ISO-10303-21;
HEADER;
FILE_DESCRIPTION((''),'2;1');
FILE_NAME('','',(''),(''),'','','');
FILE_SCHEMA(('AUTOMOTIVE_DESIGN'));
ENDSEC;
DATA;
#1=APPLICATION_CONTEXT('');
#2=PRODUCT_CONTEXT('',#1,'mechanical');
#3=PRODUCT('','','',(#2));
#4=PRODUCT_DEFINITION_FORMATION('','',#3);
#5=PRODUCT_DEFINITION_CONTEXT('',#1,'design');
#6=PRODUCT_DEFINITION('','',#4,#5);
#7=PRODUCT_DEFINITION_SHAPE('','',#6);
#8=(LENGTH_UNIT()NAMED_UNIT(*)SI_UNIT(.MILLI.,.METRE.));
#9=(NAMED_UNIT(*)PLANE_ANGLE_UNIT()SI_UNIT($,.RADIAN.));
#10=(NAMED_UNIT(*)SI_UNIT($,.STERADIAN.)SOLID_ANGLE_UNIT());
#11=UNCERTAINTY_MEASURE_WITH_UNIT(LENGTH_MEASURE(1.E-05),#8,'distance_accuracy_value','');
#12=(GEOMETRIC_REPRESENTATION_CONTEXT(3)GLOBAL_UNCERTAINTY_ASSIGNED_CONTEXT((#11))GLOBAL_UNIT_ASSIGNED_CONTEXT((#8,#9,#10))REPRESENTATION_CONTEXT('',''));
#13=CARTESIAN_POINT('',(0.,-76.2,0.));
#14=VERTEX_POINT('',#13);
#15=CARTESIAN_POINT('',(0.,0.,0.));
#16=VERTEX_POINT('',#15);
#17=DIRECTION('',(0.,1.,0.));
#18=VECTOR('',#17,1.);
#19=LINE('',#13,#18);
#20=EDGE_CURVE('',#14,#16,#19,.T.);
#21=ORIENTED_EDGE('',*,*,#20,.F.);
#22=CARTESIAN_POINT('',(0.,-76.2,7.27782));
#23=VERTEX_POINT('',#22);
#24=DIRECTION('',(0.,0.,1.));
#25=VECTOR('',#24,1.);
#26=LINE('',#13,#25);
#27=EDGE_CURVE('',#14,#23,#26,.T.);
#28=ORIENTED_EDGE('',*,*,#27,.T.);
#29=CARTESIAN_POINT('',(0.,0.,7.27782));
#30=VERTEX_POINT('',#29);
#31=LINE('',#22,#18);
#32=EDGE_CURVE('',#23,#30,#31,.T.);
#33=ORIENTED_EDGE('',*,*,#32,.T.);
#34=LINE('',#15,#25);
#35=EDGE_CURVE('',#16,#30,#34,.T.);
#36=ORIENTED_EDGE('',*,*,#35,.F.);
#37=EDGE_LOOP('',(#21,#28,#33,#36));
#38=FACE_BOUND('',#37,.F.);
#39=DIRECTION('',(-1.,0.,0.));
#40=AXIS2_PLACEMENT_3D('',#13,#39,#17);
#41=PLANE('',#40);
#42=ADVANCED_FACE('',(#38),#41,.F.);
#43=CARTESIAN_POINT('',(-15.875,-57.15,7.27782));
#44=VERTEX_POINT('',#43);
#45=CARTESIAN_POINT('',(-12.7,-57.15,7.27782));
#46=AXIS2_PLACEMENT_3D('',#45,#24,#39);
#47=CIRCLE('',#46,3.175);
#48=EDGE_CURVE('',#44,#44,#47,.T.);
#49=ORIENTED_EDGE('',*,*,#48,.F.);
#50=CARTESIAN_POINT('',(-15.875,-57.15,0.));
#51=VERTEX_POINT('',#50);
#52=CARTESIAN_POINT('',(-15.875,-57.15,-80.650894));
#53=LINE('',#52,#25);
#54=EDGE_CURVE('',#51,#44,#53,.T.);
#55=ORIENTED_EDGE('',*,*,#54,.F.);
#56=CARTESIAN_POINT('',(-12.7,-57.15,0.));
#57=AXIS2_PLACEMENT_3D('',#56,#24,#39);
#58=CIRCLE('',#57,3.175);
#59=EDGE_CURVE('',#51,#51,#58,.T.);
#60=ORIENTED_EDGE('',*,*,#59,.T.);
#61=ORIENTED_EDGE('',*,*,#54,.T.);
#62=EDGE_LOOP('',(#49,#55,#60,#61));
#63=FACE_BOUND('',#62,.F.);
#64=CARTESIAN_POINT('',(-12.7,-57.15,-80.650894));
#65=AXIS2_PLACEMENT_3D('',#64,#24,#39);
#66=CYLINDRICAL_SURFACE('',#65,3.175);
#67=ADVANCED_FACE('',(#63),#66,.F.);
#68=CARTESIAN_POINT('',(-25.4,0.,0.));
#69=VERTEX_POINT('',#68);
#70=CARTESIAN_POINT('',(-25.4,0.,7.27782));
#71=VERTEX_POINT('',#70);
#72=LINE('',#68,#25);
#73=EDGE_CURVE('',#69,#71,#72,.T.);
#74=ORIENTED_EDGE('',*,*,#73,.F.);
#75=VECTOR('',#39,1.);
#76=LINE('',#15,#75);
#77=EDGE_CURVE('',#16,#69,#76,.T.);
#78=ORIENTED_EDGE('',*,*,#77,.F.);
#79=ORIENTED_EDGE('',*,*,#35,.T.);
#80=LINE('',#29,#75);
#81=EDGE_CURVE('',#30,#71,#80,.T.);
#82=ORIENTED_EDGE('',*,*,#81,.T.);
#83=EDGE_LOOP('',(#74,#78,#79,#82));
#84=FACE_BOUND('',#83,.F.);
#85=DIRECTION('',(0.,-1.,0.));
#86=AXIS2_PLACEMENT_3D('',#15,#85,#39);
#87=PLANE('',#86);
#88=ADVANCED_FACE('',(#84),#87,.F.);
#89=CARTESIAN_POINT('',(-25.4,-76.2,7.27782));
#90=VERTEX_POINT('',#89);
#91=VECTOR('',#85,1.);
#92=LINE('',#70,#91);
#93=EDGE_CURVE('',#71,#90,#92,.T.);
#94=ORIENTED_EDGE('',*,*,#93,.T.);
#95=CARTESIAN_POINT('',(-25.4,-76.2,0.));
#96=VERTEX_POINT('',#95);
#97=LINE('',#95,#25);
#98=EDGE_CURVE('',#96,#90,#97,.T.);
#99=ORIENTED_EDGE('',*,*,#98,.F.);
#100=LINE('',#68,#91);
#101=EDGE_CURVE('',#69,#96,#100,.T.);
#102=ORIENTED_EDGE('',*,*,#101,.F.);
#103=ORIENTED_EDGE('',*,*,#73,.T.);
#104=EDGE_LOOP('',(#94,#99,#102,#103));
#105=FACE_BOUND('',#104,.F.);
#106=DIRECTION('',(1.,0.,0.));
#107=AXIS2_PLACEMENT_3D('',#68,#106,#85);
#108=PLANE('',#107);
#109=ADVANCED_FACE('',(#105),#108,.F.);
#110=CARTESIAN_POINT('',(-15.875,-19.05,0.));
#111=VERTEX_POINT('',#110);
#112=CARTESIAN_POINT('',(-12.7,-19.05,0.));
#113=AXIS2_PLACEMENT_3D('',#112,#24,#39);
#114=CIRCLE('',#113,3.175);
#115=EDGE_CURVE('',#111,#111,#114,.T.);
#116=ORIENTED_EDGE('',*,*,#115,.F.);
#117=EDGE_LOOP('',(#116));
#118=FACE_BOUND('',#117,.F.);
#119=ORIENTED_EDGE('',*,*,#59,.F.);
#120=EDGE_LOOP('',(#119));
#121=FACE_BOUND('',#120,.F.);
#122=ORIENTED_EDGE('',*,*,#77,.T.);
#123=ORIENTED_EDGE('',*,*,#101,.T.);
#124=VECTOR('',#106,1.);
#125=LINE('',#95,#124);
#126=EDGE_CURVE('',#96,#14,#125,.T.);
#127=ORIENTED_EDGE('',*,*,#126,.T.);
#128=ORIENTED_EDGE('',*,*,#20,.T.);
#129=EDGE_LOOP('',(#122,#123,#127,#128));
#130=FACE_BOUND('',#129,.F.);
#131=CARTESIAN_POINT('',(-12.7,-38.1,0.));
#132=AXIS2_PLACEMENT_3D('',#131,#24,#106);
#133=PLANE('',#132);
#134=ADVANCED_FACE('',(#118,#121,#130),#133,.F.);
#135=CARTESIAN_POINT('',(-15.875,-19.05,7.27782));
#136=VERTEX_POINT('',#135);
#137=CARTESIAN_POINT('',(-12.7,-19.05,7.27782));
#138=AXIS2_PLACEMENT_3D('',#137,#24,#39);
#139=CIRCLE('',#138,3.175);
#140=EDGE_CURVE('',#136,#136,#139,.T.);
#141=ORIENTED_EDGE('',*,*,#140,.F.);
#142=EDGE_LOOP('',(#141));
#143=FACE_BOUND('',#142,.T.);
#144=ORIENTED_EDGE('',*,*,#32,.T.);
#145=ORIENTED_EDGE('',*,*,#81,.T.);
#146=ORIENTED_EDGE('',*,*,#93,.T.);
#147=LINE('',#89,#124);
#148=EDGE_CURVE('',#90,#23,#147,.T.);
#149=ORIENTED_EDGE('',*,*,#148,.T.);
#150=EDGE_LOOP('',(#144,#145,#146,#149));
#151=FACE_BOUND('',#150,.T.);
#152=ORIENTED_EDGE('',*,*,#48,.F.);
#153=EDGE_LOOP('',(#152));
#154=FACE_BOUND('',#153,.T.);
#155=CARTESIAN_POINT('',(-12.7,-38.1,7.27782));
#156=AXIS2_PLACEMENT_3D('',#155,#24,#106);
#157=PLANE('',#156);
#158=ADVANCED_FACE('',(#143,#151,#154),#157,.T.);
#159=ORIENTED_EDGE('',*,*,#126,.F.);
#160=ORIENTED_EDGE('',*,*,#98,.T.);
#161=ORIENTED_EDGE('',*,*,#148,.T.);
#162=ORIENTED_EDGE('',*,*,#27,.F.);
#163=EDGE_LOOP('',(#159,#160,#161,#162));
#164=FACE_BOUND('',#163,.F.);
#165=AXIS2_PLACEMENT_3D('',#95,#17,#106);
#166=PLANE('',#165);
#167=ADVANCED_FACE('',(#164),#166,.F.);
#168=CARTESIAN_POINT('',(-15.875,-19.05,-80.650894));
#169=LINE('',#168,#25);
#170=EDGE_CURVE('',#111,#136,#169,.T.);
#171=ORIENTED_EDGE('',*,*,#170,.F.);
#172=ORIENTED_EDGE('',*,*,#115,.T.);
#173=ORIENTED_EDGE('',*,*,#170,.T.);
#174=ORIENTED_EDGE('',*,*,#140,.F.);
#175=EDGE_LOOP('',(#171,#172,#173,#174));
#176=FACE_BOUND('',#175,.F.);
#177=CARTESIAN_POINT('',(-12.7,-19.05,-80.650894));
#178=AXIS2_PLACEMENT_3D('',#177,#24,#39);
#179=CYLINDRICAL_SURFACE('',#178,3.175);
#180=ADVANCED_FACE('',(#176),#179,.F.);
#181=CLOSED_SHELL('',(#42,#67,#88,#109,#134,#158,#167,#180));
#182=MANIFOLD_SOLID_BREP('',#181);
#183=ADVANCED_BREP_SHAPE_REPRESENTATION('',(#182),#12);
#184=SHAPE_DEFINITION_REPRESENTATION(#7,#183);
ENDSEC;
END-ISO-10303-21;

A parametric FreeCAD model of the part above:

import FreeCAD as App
import Part
import Sketcher

V = App.Vector
Q = App.Units.Quantity

doc = App.newDocument("Part")
body = doc.addObject("PartDesign::Body", "Body")

# Sketch on XY plane
sketch1 = doc.addObject("Sketcher::SketchObject", "Sketch")
body.addObject(sketch1)
sketch1.AttachmentSupport = (doc.XY_Plane, [""])
sketch1.MapMode = "FlatFace"
sketch1.addGeometry([
    Part.LineSegment(V(0, -76, 0), V(0, 0, 0)),
    Part.LineSegment(V(0, 0, 0), V(-25, 0, 0)),
    Part.LineSegment(V(-25, 0, 0), V(-25, -76, 0)),
    Part.LineSegment(V(-25, -76, 0), V(0, -76, 0)),
], False)
sketch1.addConstraint([
    Sketcher.Constraint("Coincident", 0, 2, 1, 1),
    Sketcher.Constraint("Coincident", 1, 2, 2, 1),
    Sketcher.Constraint("Coincident", 2, 2, 3, 1),
    Sketcher.Constraint("Coincident", 3, 2, 0, 1),
    Sketcher.Constraint("Vertical", 0),
    Sketcher.Constraint("Horizontal", 1),
    Sketcher.Constraint("Vertical", 2),
    Sketcher.Constraint("Horizontal", 3),
    Sketcher.Constraint("Coincident", 0, 2, -1, 1),
    Sketcher.Constraint("DistanceX", 1, 2, 1, 1, Q("1 in")),
    Sketcher.Constraint("DistanceY", 0, 1, 0, 2, Q("3 in")),
])
pad1 = doc.addObject("PartDesign::Pad", "Pad")
body.addObject(pad1)
pad1.Profile = sketch1
pad1.Length = 7.27782

# Sketch on XY plane
sketch2 = doc.addObject("Sketcher::SketchObject", "Sketch001")
body.addObject(sketch2)
sketch2.AttachmentSupport = (doc.XY_Plane, [""])
sketch2.MapMode = "FlatFace"
sketch2.addGeometry(Part.Circle(V(-12.7, -57.1, 0), V(0, 0, 1), 3.2), False)
sketch2.addConstraint([
    Sketcher.Constraint("Diameter", 0, Q("0.25 in")),
    Sketcher.Constraint("DistanceX", 0, 3, -1, 1, Q("0.5 in")),
    Sketcher.Constraint("DistanceY", 0, 3, -1, 1, Q("2.25 in")),
])
doc.recompute()
hole = doc.addObject("PartDesign::Hole", "Hole")
body.addObject(hole)
hole.Profile = sketch2
hole.ThreadType = "None"
hole.Diameter = Q("0.25 in")
hole.DepthType = "ThroughAll"
hole.Reversed = True

# Sketch on XY plane
sketch3 = doc.addObject("Sketcher::SketchObject", "Sketch002")
body.addObject(sketch3)
sketch3.AttachmentSupport = (doc.XY_Plane, [""])
sketch3.MapMode = "FlatFace"
sketch3.addGeometry(Part.Circle(V(-12.7, -19.1, 0), V(0, 0, 1), 3.2), False)
sketch3.addConstraint([
    Sketcher.Constraint("Diameter", 0, Q("0.25 in")),
    Sketcher.Constraint("DistanceX", 0, 3, -1, 1, Q("0.5 in")),
    Sketcher.Constraint("DistanceY", 0, 3, -1, 1, Q("0.75 in")),
])
doc.recompute()
hole2 = doc.addObject("PartDesign::Hole", "Hole001")
body.addObject(hole2)
hole2.Profile = sketch3
hole2.ThreadType = "None"
hole2.Diameter = Q("0.25 in")
hole2.DepthType = "ThroughAll"
hole2.Reversed = True

doc.recompute()
